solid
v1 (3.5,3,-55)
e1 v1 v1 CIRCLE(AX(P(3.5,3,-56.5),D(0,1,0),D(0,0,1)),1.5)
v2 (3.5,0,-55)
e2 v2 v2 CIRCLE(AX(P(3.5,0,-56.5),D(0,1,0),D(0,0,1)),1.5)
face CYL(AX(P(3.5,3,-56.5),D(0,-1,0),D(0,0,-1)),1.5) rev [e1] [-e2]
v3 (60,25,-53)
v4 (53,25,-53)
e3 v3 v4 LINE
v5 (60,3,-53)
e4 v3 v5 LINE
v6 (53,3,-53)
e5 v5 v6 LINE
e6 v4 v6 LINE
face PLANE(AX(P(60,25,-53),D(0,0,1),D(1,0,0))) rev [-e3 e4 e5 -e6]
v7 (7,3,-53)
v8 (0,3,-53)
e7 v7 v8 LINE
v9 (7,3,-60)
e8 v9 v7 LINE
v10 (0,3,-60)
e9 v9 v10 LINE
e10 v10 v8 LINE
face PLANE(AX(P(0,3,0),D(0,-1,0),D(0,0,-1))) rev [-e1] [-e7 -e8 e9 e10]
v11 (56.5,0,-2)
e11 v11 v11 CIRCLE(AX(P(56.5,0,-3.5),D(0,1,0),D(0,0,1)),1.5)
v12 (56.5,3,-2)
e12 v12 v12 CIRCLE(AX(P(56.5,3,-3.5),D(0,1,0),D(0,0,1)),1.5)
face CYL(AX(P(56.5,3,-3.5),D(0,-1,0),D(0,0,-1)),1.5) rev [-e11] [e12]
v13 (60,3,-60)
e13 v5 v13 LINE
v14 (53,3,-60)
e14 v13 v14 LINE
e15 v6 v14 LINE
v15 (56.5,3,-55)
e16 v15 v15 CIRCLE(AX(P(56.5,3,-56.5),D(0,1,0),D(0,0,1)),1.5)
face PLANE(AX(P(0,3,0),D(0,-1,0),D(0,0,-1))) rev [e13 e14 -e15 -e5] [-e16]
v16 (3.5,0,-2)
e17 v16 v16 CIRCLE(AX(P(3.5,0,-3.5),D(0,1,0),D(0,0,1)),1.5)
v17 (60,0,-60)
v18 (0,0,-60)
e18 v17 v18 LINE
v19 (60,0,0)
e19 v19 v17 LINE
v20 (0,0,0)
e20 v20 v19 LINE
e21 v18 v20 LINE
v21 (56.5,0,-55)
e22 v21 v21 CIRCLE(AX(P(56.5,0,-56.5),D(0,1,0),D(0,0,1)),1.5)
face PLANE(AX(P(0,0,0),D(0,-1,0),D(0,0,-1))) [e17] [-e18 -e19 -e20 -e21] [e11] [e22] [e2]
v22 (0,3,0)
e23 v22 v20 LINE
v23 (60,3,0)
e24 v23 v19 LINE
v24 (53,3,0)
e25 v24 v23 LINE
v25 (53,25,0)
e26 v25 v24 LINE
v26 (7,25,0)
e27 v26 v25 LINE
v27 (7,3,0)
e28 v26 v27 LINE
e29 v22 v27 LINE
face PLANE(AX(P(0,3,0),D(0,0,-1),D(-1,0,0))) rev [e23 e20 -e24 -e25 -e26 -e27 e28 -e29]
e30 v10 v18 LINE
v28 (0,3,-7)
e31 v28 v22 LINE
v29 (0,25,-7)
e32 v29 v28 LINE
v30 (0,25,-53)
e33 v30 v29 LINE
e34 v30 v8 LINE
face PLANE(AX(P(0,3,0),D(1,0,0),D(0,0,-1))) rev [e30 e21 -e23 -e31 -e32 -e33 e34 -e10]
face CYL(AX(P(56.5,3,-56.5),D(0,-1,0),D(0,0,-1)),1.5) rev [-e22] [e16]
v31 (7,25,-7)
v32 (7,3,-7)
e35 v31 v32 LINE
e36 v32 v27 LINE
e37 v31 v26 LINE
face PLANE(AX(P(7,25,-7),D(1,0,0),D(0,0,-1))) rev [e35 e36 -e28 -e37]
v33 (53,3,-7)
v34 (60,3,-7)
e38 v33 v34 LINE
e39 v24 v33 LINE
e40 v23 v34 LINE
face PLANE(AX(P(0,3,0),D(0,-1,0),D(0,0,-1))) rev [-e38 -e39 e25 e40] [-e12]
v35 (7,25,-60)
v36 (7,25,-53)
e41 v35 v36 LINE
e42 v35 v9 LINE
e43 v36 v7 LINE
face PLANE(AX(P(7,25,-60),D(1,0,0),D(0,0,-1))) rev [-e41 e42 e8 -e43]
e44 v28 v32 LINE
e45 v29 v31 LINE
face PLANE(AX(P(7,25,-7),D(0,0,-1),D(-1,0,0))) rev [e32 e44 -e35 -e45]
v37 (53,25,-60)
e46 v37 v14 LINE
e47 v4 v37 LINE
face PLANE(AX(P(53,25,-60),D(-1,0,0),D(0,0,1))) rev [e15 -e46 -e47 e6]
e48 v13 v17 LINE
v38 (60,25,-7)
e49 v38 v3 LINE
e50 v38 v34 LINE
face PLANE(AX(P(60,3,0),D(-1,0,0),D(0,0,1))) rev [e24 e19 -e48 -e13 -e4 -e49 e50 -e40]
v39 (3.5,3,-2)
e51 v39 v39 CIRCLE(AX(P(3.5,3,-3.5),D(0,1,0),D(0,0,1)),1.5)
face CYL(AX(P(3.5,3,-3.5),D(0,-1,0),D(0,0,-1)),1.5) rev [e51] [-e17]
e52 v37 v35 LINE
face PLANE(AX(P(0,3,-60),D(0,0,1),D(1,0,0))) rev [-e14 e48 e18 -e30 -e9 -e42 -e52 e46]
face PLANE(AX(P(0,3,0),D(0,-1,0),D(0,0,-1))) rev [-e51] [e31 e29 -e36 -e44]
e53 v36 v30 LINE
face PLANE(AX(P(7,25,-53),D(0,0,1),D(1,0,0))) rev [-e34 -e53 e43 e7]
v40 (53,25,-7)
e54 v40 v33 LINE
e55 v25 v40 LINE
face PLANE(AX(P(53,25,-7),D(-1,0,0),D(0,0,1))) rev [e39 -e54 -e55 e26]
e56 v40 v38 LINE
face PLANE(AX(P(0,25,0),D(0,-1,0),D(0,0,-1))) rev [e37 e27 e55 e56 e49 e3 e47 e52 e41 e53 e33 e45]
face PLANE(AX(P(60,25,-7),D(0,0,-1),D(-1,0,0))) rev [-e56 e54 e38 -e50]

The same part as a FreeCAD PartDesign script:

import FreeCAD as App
import Part
import Sketcher

V = App.Vector

doc = App.newDocument("Part")
params = doc.addObject("Spreadsheet::Sheet", "Params")
for row, (alias, value) in enumerate([
    ("sketch1_diameter", "3 mm"),
    ("sketch1_width", "60 mm"),
    ("pad1_length", "3 mm"),
    ("sketch2_width", "46 mm"),
    ("sketch2_width2", "7 mm"),
    ("pad2_length", "22 mm"),
], start=1):
    params.set(f"A{row}", alias)
    params.set(f"B{row}", "=" + value)
    params.setAlias(f"B{row}", alias)

body = doc.addObject("PartDesign::Body", "Body")

# Sketch on XZ plane
sketch1 = body.newObject("Sketcher::SketchObject", "Sketch")
sketch1.AttachmentSupport = (doc.getObject("XZ_Plane"), [""])
sketch1.MapMode = "FlatFace"
sketch1.addGeometry([
    Part.LineSegment(V(0, -60, 0), V(0, 0, 0)),  # 0
    Part.LineSegment(V(0, 0, 0), V(60, 0, 0)),  # 1
    Part.LineSegment(V(60, 0, 0), V(60, -60, 0)),  # 2
    Part.LineSegment(V(60, -60, 0), V(0, -60, 0)),  # 3
    Part.Circle(V(3.5, -3.5, 0), V(0, 0, 1), 1.5),  # 4
    Part.Circle(V(56.5, -3.5, 0), V(0, 0, 1), 1.5),  # 5
    Part.Circle(V(3.5, -56.5, 0), V(0, 0, 1), 1.5),  # 6
    Part.Circle(V(56.5, -56.5, 0), V(0, 0, 1), 1.5),  # 7
], False)
sketch1.addConstraint([
    Sketcher.Constraint("Coincident", 0, 2, 1, 1),
    Sketcher.Constraint("Coincident", 1, 2, 2, 1),
    Sketcher.Constraint("Coincident", 2, 2, 3, 1),
    Sketcher.Constraint("Coincident", 3, 2, 0, 1),
    Sketcher.Constraint("Vertical", 0),
    Sketcher.Constraint("Horizontal", 1),
    Sketcher.Constraint("Vertical", 2),
    Sketcher.Constraint("Horizontal", 3),
    Sketcher.Constraint("Coincident", 0, 2, -1, 1),
    Sketcher.Constraint("Equal", 4, 5),
    Sketcher.Constraint("Equal", 5, 6),
    Sketcher.Constraint("Equal", 6, 7),
    Sketcher.Constraint("Horizontal", 4, 3, 5, 3),
    Sketcher.Constraint("Horizontal", 6, 3, 7, 3),
    Sketcher.Constraint("Vertical", 4, 3, 6, 3),
    Sketcher.Constraint("Vertical", 5, 3, 7, 3),
    Sketcher.Constraint("Equal", 3, 0),
    Sketcher.Constraint("Diameter", 4, 3.0),
    Sketcher.Constraint("DistanceX", 1, 1, 1, 2, 60.0),
    Sketcher.Constraint("DistanceX", 4, 3, 5, 3, 53.0),
    Sketcher.Constraint("DistanceY", 6, 3, 4, 3, 53.0),
    Sketcher.Constraint("DistanceX", -1, 1, 4, 3, 3.5),
    Sketcher.Constraint("DistanceY", 4, 3, -1, 1, 3.5),
])
sketch1.setExpression("Constraints[17]", "Params.sketch1_diameter")
sketch1.setExpression("Constraints[18]", "Params.sketch1_width")
pad1 = body.newObject("PartDesign::Pad", "Pad")
pad1.Profile = sketch1
pad1.setExpression("Length", "Params.pad1_length")
pad1.Reversed = True

# Sketch on XZ plane
sketch2 = body.newObject("Sketcher::SketchObject", "Sketch001")
sketch2.AttachmentSupport = (doc.getObject("XZ_Plane"), [""])
sketch2.MapMode = "FlatFace"
sketch2.AttachmentOffset = App.Placement(V(0, 0, -3), App.Rotation())
sketch2.addGeometry([
    Part.LineSegment(V(53, -60, 0), V(7, -60, 0)),  # 0
    Part.LineSegment(V(7, -60, 0), V(7, -53, 0)),  # 1
    Part.LineSegment(V(7, -53, 0), V(0, -53, 0)),  # 2
    Part.LineSegment(V(0, -53, 0), V(0, -7, 0)),  # 3
    Part.LineSegment(V(0, -7, 0), V(7, -7, 0)),  # 4
    Part.LineSegment(V(7, -7, 0), V(7, 0, 0)),  # 5
    Part.LineSegment(V(7, 0, 0), V(53, 0, 0)),  # 6
    Part.LineSegment(V(53, 0, 0), V(53, -7, 0)),  # 7
    Part.LineSegment(V(53, -7, 0), V(60, -7, 0)),  # 8
    Part.LineSegment(V(60, -7, 0), V(60, -53, 0)),  # 9
    Part.LineSegment(V(60, -53, 0), V(53, -53, 0)),  # 10
    Part.LineSegment(V(53, -53, 0), V(53, -60, 0)),  # 11
], False)
sketch2.addConstraint([
    Sketcher.Constraint("Coincident", 0, 2, 1, 1),
    Sketcher.Constraint("Coincident", 1, 2, 2, 1),
    Sketcher.Constraint("Coincident", 2, 2, 3, 1),
    Sketcher.Constraint("Coincident", 3, 2, 4, 1),
    Sketcher.Constraint("Coincident", 4, 2, 5, 1),
    Sketcher.Constraint("Coincident", 5, 2, 6, 1),
    Sketcher.Constraint("Coincident", 6, 2, 7, 1),
    Sketcher.Constraint("Coincident", 7, 2, 8, 1),
    Sketcher.Constraint("Coincident", 8, 2, 9, 1),
    Sketcher.Constraint("Coincident", 9, 2, 10, 1),
    Sketcher.Constraint("Coincident", 10, 2, 11, 1),
    Sketcher.Constraint("Coincident", 11, 2, 0, 1),
    Sketcher.Constraint("Horizontal", 0),
    Sketcher.Constraint("Vertical", 1),
    Sketcher.Constraint("Horizontal", 2),
    Sketcher.Constraint("Vertical", 3),
    Sketcher.Constraint("Horizontal", 4),
    Sketcher.Constraint("Vertical", 5),
    Sketcher.Constraint("Horizontal", 6),
    Sketcher.Constraint("Vertical", 7),
    Sketcher.Constraint("Horizontal", 8),
    Sketcher.Constraint("Vertical", 9),
    Sketcher.Constraint("Horizontal", 10),
    Sketcher.Constraint("Vertical", 11),
    Sketcher.Constraint("PointOnObject", 2, 2, -2),
    Sketcher.Constraint("PointOnObject", 5, 2, -1),
    Sketcher.Constraint("Horizontal", 4, 2, 7, 2),
    Sketcher.Constraint("Horizontal", 2, 2, 9, 2),
    Sketcher.Constraint("Vertical", 1, 2, 4, 2),
    Sketcher.Constraint("Vertical", 7, 2, 10, 2),
    Sketcher.Constraint("Equal", 4, 8),
    Sketcher.Constraint("Equal", 10, 1),
    Sketcher.Constraint("Equal", 6, 3),
    Sketcher.Constraint("Equal", 1, 5),
    Sketcher.Constraint("DistanceX", 0, 2, 0, 1, 46.0),
    Sketcher.Constraint("DistanceX", 2, 2, 2, 1, 7.0),
])
sketch2.setExpression("Constraints[34]", "Params.sketch2_width")
sketch2.setExpression("Constraints[35]", "Params.sketch2_width2")
pad2 = body.newObject("PartDesign::Pad", "Pad001")
pad2.Profile = sketch2
pad2.setExpression("Length", "Params.pad2_length")
pad2.Reversed = True

doc.recompute()
